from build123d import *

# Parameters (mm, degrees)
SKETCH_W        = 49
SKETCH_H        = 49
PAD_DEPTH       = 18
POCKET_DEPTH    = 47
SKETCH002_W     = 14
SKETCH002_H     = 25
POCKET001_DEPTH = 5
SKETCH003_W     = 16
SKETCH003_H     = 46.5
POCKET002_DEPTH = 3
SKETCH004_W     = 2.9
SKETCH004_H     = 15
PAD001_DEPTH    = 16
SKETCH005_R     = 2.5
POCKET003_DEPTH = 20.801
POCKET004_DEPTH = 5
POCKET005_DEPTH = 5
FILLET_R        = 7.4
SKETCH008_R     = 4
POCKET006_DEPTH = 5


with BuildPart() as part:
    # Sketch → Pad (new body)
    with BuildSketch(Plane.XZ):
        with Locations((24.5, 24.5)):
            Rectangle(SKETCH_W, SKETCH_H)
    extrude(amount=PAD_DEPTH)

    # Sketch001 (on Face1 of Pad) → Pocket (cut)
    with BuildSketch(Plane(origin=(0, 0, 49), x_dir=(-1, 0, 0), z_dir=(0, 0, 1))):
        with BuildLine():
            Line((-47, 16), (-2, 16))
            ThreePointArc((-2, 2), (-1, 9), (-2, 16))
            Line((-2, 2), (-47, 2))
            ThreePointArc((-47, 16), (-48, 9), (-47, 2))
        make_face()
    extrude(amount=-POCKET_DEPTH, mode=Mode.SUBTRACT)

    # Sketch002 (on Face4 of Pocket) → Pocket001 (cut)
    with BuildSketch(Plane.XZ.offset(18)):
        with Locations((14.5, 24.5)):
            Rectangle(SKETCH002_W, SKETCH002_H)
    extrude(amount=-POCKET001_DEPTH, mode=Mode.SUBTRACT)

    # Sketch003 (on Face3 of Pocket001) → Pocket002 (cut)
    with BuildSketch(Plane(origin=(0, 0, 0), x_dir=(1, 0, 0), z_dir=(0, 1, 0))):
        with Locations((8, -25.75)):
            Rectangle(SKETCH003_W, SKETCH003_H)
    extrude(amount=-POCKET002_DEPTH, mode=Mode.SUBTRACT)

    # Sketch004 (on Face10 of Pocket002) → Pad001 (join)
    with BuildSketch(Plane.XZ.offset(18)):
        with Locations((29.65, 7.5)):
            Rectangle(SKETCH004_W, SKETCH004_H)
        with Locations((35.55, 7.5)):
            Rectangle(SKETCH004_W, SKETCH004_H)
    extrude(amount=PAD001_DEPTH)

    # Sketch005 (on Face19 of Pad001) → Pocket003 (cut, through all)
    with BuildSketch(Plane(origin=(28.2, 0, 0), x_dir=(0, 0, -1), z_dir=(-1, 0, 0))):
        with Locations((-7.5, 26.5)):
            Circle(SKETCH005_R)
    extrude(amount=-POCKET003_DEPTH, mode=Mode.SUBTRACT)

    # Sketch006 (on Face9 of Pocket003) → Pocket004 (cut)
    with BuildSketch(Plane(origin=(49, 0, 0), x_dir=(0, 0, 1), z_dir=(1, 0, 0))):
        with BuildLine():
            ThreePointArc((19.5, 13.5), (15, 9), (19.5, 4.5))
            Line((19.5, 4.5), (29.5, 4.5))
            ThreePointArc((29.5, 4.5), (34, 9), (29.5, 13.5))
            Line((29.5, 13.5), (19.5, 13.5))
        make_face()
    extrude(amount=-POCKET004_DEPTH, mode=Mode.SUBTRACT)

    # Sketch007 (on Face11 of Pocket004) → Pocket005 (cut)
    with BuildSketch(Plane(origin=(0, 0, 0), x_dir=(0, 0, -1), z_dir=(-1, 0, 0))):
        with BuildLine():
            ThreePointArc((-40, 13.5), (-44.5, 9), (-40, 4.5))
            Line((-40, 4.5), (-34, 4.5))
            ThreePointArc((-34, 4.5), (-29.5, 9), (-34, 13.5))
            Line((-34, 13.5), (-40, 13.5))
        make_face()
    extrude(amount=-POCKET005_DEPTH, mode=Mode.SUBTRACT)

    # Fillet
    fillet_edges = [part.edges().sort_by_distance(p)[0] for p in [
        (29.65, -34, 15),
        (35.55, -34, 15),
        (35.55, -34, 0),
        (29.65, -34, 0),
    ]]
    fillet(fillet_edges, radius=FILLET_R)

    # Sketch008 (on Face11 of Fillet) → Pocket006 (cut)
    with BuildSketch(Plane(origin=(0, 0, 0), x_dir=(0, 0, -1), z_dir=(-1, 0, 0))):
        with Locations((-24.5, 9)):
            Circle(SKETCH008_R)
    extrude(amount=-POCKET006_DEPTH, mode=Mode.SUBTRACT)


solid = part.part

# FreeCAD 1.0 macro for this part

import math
import FreeCAD as App
import Part
import Sketcher

V = App.Vector
Q = App.Units.Quantity


def edges_at(feature, points):
    """Names of the edges that pass closest to the given points."""
    edges = feature.Shape.Edges
    near = lambda p: min(range(len(edges)), key=lambda i: edges[i].distToShape(Part.Vertex(*p))[0])
    return sorted({f"Edge{near(p) + 1}" for p in points})


def add_polygon(sketch, points):
    """Adds a closed chain of lines whose ends are joined by coincident constraints."""
    first, n = sketch.GeometryCount, len(points)
    for a, b in zip(points, points[1:] + points[:1]):
        sketch.addGeometry(Part.LineSegment(App.Vector(*a, 0), App.Vector(*b, 0)), False)
    for i in range(n):
        sketch.addConstraint(Sketcher.Constraint("Coincident", first + i, 2, first + (i + 1) % n, 1))

doc = App.newDocument("Part")
body = doc.addObject("PartDesign::Body", "Body")

sketch1 = doc.addObject("Sketcher::SketchObject", "Sketch")
body.addObject(sketch1)
sketch1.AttachmentSupport = (doc.XZ_Plane, [""])
sketch1.MapMode = "FlatFace"
add_polygon(sketch1, [(0, 49), (0, 0), (49, 0), (49, 49)])
sketch1.addConstraint(Sketcher.Constraint("Vertical", 0))
sketch1.addConstraint(Sketcher.Constraint("Horizontal", 1))
sketch1.addConstraint(Sketcher.Constraint("Vertical", 2))
sketch1.addConstraint(Sketcher.Constraint("Horizontal", 3))
sketch1.addConstraint(Sketcher.Constraint("Coincident", 0, 2, -1, 1))
sketch1.addConstraint(Sketcher.Constraint("Equal", 3, 0))
sketch1.addConstraint(Sketcher.Constraint("DistanceX", 1, 1, 1, 2, Q("49 mm")))
pad1 = doc.addObject("PartDesign::Pad", "Pad")
body.addObject(pad1)
pad1.Profile = sketch1
pad1.Length = 18

sketch2 = doc.addObject("Sketcher::SketchObject", "Sketch001")
body.addObject(sketch2)
sketch2.AttachmentSupport = (doc.XY_Plane, [""])
sketch2.MapMode = "FlatFace"
sketch2.AttachmentOffset = App.Placement(V(0, 0, 49), App.Rotation())
sketch2.addGeometry(Part.LineSegment(V(2, -16, 0), V(47, -16, 0)), False)
sketch2.addGeometry(Part.ArcOfCircle(Part.Circle(V(23, -9, 0), V(0, 0, 1), 25), math.radians(-16), math.radians(16)), False)
sketch2.addGeometry(Part.LineSegment(V(47, -2, 0), V(2, -2, 0)), False)
sketch2.addGeometry(Part.ArcOfCircle(Part.Circle(V(26, -9, 0), V(0, 0, 1), 25), math.radians(164), math.radians(196)), False)
sketch2.addConstraint(Sketcher.Constraint("Coincident", 0, 2, 1, 1))
sketch2.addConstraint(Sketcher.Constraint("Coincident", 1, 2, 2, 1))
sketch2.addConstraint(Sketcher.Constraint("Coincident", 2, 2, 3, 1))
sketch2.addConstraint(Sketcher.Constraint("Coincident", 3, 2, 0, 1))
sketch2.addConstraint(Sketcher.Constraint("Horizontal", 0))
sketch2.addConstraint(Sketcher.Constraint("Horizontal", 2))
sketch2.addConstraint(Sketcher.Constraint("Equal", 1, 3))
sketch2.addConstraint(Sketcher.Constraint("Horizontal", 1, 3, 3, 3))
sketch2.addConstraint(Sketcher.Constraint("Vertical", 0, 2, 1, 2))
sketch2.addConstraint(Sketcher.Constraint("Radius", 1, Q("25 mm")))
sketch2.addConstraint(Sketcher.Constraint("DistanceX", 0, 1, 0, 2, Q("45 mm")))
sketch2.addConstraint(Sketcher.Constraint("DistanceX", -1, 1, 1, 3, Q("23 mm")))
sketch2.addConstraint(Sketcher.Constraint("DistanceY", 1, 3, -1, 1, Q("9 mm")))
sketch2.addConstraint(Sketcher.Constraint("DistanceX", -1, 1, 3, 3, Q("26 mm")))
pocket1 = doc.addObject("PartDesign::Pocket", "Pocket")
body.addObject(pocket1)
pocket1.Profile = sketch2
pocket1.Length = 47

sketch3 = doc.addObject("Sketcher::SketchObject", "Sketch002")
body.addObject(sketch3)
sketch3.AttachmentSupport = (doc.XZ_Plane, [""])
sketch3.MapMode = "FlatFace"
sketch3.AttachmentOffset = App.Placement(V(0, 0, 18), App.Rotation())
add_polygon(sketch3, [(8, 37), (8, 12), (22, 12), (22, 37)])
sketch3.addConstraint(Sketcher.Constraint("Vertical", 0))
sketch3.addConstraint(Sketcher.Constraint("Horizontal", 1))
sketch3.addConstraint(Sketcher.Constraint("Vertical", 2))
sketch3.addConstraint(Sketcher.Constraint("Horizontal", 3))
sketch3.addConstraint(Sketcher.Constraint("DistanceX", 1, 1, 1, 2, Q("14 mm")))
sketch3.addConstraint(Sketcher.Constraint("DistanceY", 0, 2, 0, 1, Q("25 mm")))
sketch3.addConstraint(Sketcher.Constraint("DistanceY", -1, 1, 0, 2, Q("12 mm")))
sketch3.addConstraint(Sketcher.Constraint("DistanceX", -1, 1, 0, 2, Q("7.5 mm")))
pocket2 = doc.addObject("PartDesign::Pocket", "Pocket001")
body.addObject(pocket2)
pocket2.Profile = sketch3
pocket2.Length = 5

sketch4 = doc.addObject("Sketcher::SketchObject", "Sketch003")
body.addObject(sketch4)
sketch4.AttachmentSupport = (doc.XZ_Plane, [""])
sketch4.MapMode = "FlatFace"
add_polygon(sketch4, [(0, 2), (0, 49), (16, 49), (16, 2)])
sketch4.addConstraint(Sketcher.Constraint("Vertical", 0))
sketch4.addConstraint(Sketcher.Constraint("Horizontal", 1))
sketch4.addConstraint(Sketcher.Constraint("Vertical", 2))
sketch4.addConstraint(Sketcher.Constraint("Horizontal", 3))
sketch4.addConstraint(Sketcher.Constraint("PointOnObject", 0, 2, -2))
sketch4.addConstraint(Sketcher.Constraint("DistanceX", 1, 1, 1, 2, Q("16 mm")))
sketch4.addConstraint(Sketcher.Constraint("DistanceY", 0, 1, 0, 2, Q("46.5 mm")))
sketch4.addConstraint(Sketcher.Constraint("DistanceY", -1, 1, 0, 2, Q("49 mm")))
pocket3 = doc.addObject("PartDesign::Pocket", "Pocket002")
body.addObject(pocket3)
pocket3.Profile = sketch4
pocket3.Length = 3
pocket3.Reversed = True

sketch5 = doc.addObject("Sketcher::SketchObject", "Sketch004")
body.addObject(sketch5)
sketch5.AttachmentSupport = (doc.XZ_Plane, [""])
sketch5.MapMode = "FlatFace"
sketch5.AttachmentOffset = App.Placement(V(0, 0, 18), App.Rotation())
add_polygon(sketch5, [(28.2, 15), (28.2, 0), (31.1, 0), (31.1, 15)])
add_polygon(sketch5, [(34.1, 15), (34.1, 0), (37, 0), (37, 15)])
sketch5.addConstraint(Sketcher.Constraint("Vertical", 0))
sketch5.addConstraint(Sketcher.Constraint("Horizontal", 1))
sketch5.addConstraint(Sketcher.Constraint("Vertical", 2))
sketch5.addConstraint(Sketcher.Constraint("Horizontal", 3))
sketch5.addConstraint(Sketcher.Constraint("Vertical", 4))
sketch5.addConstraint(Sketcher.Constraint("Horizontal", 5))
sketch5.addConstraint(Sketcher.Constraint("Vertical", 6))
sketch5.addConstraint(Sketcher.Constraint("Horizontal", 7))
sketch5.addConstraint(Sketcher.Constraint("PointOnObject", 0, 2, -1))
sketch5.addConstraint(Sketcher.Constraint("PointOnObject", 4, 2, -1))
sketch5.addConstraint(Sketcher.Constraint("Horizontal", 3, 2, 6, 2))
sketch5.addConstraint(Sketcher.Constraint("Equal", 3, 5))
sketch5.addConstraint(Sketcher.Constraint("DistanceY", 0, 2, 0, 1, Q("15 mm")))
sketch5.addConstraint(Sketcher.Constraint("DistanceX", 1, 1, 1, 2, Q("2.9 mm")))
sketch5.addConstraint(Sketcher.Constraint("DistanceX", -1, 1, 5, 2, Q("37 mm")))
sketch5.addConstraint(Sketcher.Constraint("DistanceX", 1, 2, 4, 2, Q("3 mm")))
pad2 = doc.addObject("PartDesign::Pad", "Pad001")
body.addObject(pad2)
pad2.Profile = sketch5
pad2.Length = 16

sketch6 = doc.addObject("Sketcher::SketchObject", "Sketch005")
body.addObject(sketch6)
sketch6.AttachmentSupport = (doc.YZ_Plane, [""])
sketch6.MapMode = "FlatFace"
sketch6.AttachmentOffset = App.Placement(V(0, 0, 28.2), App.Rotation())
sketch6.addGeometry(Part.Circle(V(-26.5, 7.5, 0), V(0, 0, 1), 2.5), False)
sketch6.addConstraint(Sketcher.Constraint("Diameter", 0, Q("5 mm")))
sketch6.addConstraint(Sketcher.Constraint("DistanceX", 0, 3, -1, 1, Q("26.5 mm")))
sketch6.addConstraint(Sketcher.Constraint("DistanceY", -1, 1, 0, 3, Q("7.5 mm")))
pocket4 = doc.addObject("PartDesign::Pocket", "Pocket003")
body.addObject(pocket4)
pocket4.Profile = sketch6
pocket4.Type = "ThroughAll"
pocket4.Reversed = True

sketch7 = doc.addObject("Sketcher::SketchObject", "Sketch006")
body.addObject(sketch7)
sketch7.AttachmentSupport = (doc.YZ_Plane, [""])
sketch7.MapMode = "FlatFace"
sketch7.AttachmentOffset = App.Placement(V(0, 0, 49), App.Rotation())
sketch7.addGeometry(Part.ArcOfCircle(Part.Circle(V(-9, 19.5, 0), V(0, 0, 1), 4.5), math.radians(180), math.radians(360)), False)
sketch7.addGeometry(Part.LineSegment(V(-4.5, 19.5, 0), V(-4.5, 29.5, 0)), False)
sketch7.addGeometry(Part.ArcOfCircle(Part.Circle(V(-9, 29.5, 0), V(0, 0, 1), 4.5), math.radians(0), math.radians(180)), False)
sketch7.addGeometry(Part.LineSegment(V(-13.5, 29.5, 0), V(-13.5, 19.5, 0)), False)
sketch7.addConstraint(Sketcher.Constraint("Tangent", 0, 2, 1, 1))
sketch7.addConstraint(Sketcher.Constraint("Tangent", 1, 2, 2, 1))
sketch7.addConstraint(Sketcher.Constraint("Tangent", 2, 2, 3, 1))
sketch7.addConstraint(Sketcher.Constraint("Tangent", 3, 2, 0, 1))
sketch7.addConstraint(Sketcher.Constraint("Vertical", 1))
sketch7.addConstraint(Sketcher.Constraint("Vertical", 3))
sketch7.addConstraint(Sketcher.Constraint("Radius", 0, Q("4.5 mm")))
sketch7.addConstraint(Sketcher.Constraint("DistanceY", 1, 1, 1, 2, Q("10 mm")))
sketch7.addConstraint(Sketcher.Constraint("DistanceX", 0, 3, -1, 1, Q("9 mm")))
sketch7.addConstraint(Sketcher.Constraint("DistanceY", -1, 1, 0, 3, Q("19.5 mm")))
pocket5 = doc.addObject("PartDesign::Pocket", "Pocket004")
body.addObject(pocket5)
pocket5.Profile = sketch7
pocket5.Length = 5

sketch8 = doc.addObject("Sketcher::SketchObject", "Sketch007")
body.addObject(sketch8)
sketch8.AttachmentSupport = (doc.YZ_Plane, [""])
sketch8.MapMode = "FlatFace"
sketch8.addGeometry(Part.ArcOfCircle(Part.Circle(V(-9, 40, 0), V(0, 0, 1), 4.5), math.radians(0), math.radians(180)), False)
sketch8.addGeometry(Part.LineSegment(V(-4.5, 40, 0), V(-4.5, 34, 0)), False)
sketch8.addGeometry(Part.ArcOfCircle(Part.Circle(V(-9, 34, 0), V(0, 0, 1), 4.5), math.radians(180), math.radians(360)), False)
sketch8.addGeometry(Part.LineSegment(V(-13.5, 34, 0), V(-13.5, 40, 0)), False)
sketch8.addConstraint(Sketcher.Constraint("Tangent", 0, 1, 1, 1))
sketch8.addConstraint(Sketcher.Constraint("Tangent", 1, 2, 2, 2))
sketch8.addConstraint(Sketcher.Constraint("Tangent", 2, 1, 3, 1))
sketch8.addConstraint(Sketcher.Constraint("Tangent", 3, 2, 0, 2))
sketch8.addConstraint(Sketcher.Constraint("Vertical", 1))
sketch8.addConstraint(Sketcher.Constraint("Vertical", 3))
sketch8.addConstraint(Sketcher.Constraint("Radius", 0, Q("4.5 mm")))
sketch8.addConstraint(Sketcher.Constraint("DistanceY", 1, 2, 1, 1, Q("6 mm")))
sketch8.addConstraint(Sketcher.Constraint("DistanceX", 0, 3, -1, 1, Q("9 mm")))
sketch8.addConstraint(Sketcher.Constraint("DistanceY", -1, 1, 0, 3, Q("40 mm")))
pocket6 = doc.addObject("PartDesign::Pocket", "Pocket005")
body.addObject(pocket6)
pocket6.Profile = sketch8
pocket6.Length = 5
pocket6.Reversed = True
doc.recompute()

fillet = doc.addObject("PartDesign::Fillet", "Fillet")
body.addObject(fillet)
fillet.Base = (pocket6, edges_at(pocket6, [
    (29.65, -34, 15),
    (35.55, -34, 15),
    (35.55, -34, 0),
    (29.65, -34, 0),
]))
fillet.Radius = 7.4

sketch9 = doc.addObject("Sketcher::SketchObject", "Sketch008")
body.addObject(sketch9)
sketch9.AttachmentSupport = (doc.YZ_Plane, [""])
sketch9.MapMode = "FlatFace"
sketch9.addGeometry(Part.Circle(V(-9, 24.5, 0), V(0, 0, 1), 4), False)
sketch9.addConstraint(Sketcher.Constraint("Diameter", 0, Q("8 mm")))
sketch9.addConstraint(Sketcher.Constraint("DistanceX", 0, 3, -1, 1, Q("9 mm")))
sketch9.addConstraint(Sketcher.Constraint("DistanceY", -1, 1, 0, 3, Q("24.5 mm")))
pocket7 = doc.addObject("PartDesign::Pocket", "Pocket006")
body.addObject(pocket7)
pocket7.Profile = sketch9
pocket7.Length = 5
pocket7.Reversed = True

doc.recompute()
